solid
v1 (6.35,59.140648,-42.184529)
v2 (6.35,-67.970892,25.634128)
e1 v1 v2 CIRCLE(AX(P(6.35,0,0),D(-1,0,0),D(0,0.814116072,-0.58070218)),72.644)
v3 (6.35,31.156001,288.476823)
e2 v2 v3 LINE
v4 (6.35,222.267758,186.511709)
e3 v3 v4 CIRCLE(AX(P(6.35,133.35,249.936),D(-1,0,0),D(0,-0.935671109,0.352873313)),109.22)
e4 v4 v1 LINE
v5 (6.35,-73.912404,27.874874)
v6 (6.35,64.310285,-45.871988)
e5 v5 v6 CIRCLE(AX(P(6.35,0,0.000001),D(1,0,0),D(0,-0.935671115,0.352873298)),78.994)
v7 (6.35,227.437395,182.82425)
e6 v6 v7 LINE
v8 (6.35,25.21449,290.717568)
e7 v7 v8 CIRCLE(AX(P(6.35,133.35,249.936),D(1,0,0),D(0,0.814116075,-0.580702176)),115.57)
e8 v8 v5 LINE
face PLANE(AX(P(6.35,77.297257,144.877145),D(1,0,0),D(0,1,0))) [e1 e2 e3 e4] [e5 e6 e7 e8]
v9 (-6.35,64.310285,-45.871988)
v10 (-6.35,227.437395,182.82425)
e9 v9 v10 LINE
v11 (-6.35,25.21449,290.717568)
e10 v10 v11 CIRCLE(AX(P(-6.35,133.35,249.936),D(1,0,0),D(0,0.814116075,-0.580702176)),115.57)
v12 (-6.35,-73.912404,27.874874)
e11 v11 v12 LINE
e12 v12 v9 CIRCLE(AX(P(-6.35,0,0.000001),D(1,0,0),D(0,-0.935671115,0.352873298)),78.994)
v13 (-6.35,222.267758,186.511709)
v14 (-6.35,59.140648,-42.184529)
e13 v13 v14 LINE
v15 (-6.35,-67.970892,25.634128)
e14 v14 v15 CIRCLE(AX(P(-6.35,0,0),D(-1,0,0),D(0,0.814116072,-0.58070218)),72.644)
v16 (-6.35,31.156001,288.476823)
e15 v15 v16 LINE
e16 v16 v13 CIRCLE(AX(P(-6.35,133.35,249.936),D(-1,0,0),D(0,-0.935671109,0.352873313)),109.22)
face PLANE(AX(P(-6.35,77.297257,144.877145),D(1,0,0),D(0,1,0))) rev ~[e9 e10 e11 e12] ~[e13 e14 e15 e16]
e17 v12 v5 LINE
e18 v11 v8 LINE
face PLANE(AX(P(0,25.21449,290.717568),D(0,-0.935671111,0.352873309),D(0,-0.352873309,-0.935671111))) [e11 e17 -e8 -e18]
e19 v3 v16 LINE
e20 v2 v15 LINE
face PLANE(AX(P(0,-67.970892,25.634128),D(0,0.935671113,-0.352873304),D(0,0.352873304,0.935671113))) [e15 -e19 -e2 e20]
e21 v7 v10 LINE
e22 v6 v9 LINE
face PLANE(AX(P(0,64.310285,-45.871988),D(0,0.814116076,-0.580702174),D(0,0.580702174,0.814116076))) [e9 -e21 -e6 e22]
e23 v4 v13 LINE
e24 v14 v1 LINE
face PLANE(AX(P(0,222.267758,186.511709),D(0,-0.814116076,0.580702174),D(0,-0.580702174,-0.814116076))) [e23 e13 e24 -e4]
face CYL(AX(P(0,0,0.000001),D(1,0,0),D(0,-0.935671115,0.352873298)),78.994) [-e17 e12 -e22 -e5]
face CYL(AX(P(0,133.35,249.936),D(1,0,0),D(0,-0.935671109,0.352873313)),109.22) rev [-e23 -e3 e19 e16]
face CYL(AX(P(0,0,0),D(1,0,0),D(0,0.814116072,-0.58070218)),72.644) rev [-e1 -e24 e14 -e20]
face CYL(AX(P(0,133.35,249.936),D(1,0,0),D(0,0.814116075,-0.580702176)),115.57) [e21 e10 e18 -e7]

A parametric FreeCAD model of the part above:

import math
import FreeCAD as App
import Part
import Sketcher
from FreeCAD import Vector
Q = App.Units.Quantity

doc = App.newDocument("Part")
body = doc.addObject("PartDesign::Body", "Body")

sketch1 = body.newObject("Sketcher::SketchObject", "Sketch")
sketch1.AttachmentSupport = (doc.getObject("YZ_Plane"), [""])
sketch1.MapMode = "FlatFace"
sketch1.addGeometry([
    Part.ArcOfCircle(Part.Circle(Vector(133, 250, 0), Vector(0, 0, 1), 116), math.radians(-35), math.radians(159)),
    Part.LineSegment(Vector(25, 291, 0), Vector(-74, 28, 0)),
    Part.ArcOfCircle(Part.Circle(Vector(0, 0, 0), Vector(0, 0, 1), 79), math.radians(159), math.radians(325)),
    Part.LineSegment(Vector(64, -46, 0), Vector(227, 183, 0)),
    Part.LineSegment(Vector(222, 187, 0), Vector(59, -42, 0)),
    Part.ArcOfCircle(Part.Circle(Vector(0, 0, 0), Vector(0, 0, 1), 73), math.radians(159), math.radians(325)),
    Part.LineSegment(Vector(-68, 26, 0), Vector(31, 288, 0)),
    Part.ArcOfCircle(Part.Circle(Vector(133, 250, 0), Vector(0, 0, 1), 109), math.radians(-35), math.radians(159)),
], False)
sketch1.addConstraint([
    Sketcher.Constraint("Tangent", 0, 2, 1, 1),
    Sketcher.Constraint("Tangent", 1, 2, 2, 1),
    Sketcher.Constraint("Tangent", 2, 2, 3, 1),
    Sketcher.Constraint("Tangent", 3, 2, 0, 1),
    Sketcher.Constraint("Tangent", 4, 2, 5, 2),
    Sketcher.Constraint("Tangent", 5, 1, 6, 1),
    Sketcher.Constraint("Tangent", 6, 2, 7, 2),
    Sketcher.Constraint("Tangent", 7, 1, 4, 1),
    Sketcher.Constraint("Coincident", 2, 3, -1, 1),
    Sketcher.Constraint("Coincident", 5, 3, -1, 1),
    Sketcher.Constraint("Coincident", 7, 3, 0, 3),
    Sketcher.Constraint("Parallel", 3, 4),
    Sketcher.Constraint("Radius", 7, Q("4.3 in")),
    Sketcher.Constraint("Radius", 0, Q("4.55 in")),
    Sketcher.Constraint("Radius", 2, Q("3.11 in")),
    Sketcher.Constraint("DistanceX", -1, 1, 0, 3, Q("5.25 in")),
    Sketcher.Constraint("DistanceY", -1, 1, 0, 3, Q("9.84 in")),
])
pad1 = body.newObject("PartDesign::Pad", "Pad")
pad1.Profile = sketch1
pad1.Length = Q("0.5 in")
pad1.Midplane = True

doc.recompute()
